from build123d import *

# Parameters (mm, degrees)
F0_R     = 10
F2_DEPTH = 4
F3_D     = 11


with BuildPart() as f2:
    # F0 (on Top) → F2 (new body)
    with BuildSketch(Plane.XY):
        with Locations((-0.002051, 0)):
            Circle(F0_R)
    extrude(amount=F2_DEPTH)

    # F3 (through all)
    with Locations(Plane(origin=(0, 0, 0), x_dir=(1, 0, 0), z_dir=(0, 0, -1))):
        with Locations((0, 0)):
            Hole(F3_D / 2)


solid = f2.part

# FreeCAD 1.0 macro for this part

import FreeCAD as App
import Part
import Sketcher

doc = App.newDocument("Part")
body = doc.addObject("PartDesign::Body", "Body")

# Sketch on XY plane
sketch1 = body.newObject("Sketcher::SketchObject", "Sketch")
sketch1.AttachmentSupport = (doc.getObject("XY_Plane"), [""])
sketch1.MapMode = "FlatFace"
sketch1.addGeometry(Part.Circle(App.Vector(-0.002051, 0, 0), App.Vector(0, 0, 1), 10), False)
sketch1.addConstraint([
    Sketcher.Constraint("PointOnObject", 0, 3, -1),
    Sketcher.Constraint("Diameter", 0, 20.0),
    Sketcher.Constraint("DistanceX", 0, 3, -1, 1, 0.002051),
])
pad1 = body.newObject("PartDesign::Pad", "Pad")
pad1.Profile = sketch1
pad1.Length = 4

# Sketch on XY plane
sketch2 = body.newObject("Sketcher::SketchObject", "Sketch001")
sketch2.AttachmentSupport = (doc.getObject("XY_Plane"), [""])
sketch2.MapMode = "FlatFace"
sketch2.addGeometry(Part.Circle(App.Vector(0, 0, 0), App.Vector(0, 0, 1), 5.5), False)
sketch2.addConstraint([
    Sketcher.Constraint("Coincident", 0, 3, -1, 1),
    Sketcher.Constraint("Diameter", 0, 11.0),
])
doc.recompute()
hole = body.newObject("PartDesign::Hole", "Hole")
hole.Profile = sketch2
hole.ThreadType = "None"
hole.Diameter = 11
hole.DepthType = "ThroughAll"
hole.Reversed = True

doc.recompute()
